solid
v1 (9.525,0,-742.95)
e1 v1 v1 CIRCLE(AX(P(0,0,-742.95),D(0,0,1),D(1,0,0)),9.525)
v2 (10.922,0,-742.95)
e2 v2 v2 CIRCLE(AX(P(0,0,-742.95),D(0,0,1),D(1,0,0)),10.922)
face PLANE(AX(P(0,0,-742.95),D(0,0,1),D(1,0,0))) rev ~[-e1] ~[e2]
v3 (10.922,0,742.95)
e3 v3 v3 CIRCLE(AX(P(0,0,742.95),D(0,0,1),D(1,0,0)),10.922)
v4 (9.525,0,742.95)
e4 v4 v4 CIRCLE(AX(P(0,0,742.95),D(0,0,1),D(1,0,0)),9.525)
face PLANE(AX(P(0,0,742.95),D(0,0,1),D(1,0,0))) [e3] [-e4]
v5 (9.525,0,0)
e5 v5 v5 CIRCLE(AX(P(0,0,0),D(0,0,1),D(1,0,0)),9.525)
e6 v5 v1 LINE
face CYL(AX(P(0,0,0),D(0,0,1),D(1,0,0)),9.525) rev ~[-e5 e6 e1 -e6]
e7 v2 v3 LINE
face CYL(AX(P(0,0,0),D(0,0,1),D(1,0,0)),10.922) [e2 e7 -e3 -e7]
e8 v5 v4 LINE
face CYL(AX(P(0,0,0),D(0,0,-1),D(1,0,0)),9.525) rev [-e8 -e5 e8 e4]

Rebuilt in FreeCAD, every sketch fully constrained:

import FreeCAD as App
import Part
import Sketcher
Q = App.Units.Quantity

doc = App.newDocument("Part")
params = doc.addObject("Spreadsheet::Sheet", "Params")
for row, (alias, value) in enumerate([
    ("sketch1_diameter", "0.86 in"),
    ("sketch1_diameter2", "0.75 in"),
    ("pad1_length", "29.25 in"),
    ("pad1_length2", "29.25 in"),
], start=1):
    params.set(f"A{row}", alias)
    params.set(f"B{row}", "=" + value)
    params.setAlias(f"B{row}", alias)

body = doc.addObject("PartDesign::Body", "Body")

# Sketch on XY plane
sketch1 = body.newObject("Sketcher::SketchObject", "Sketch")
sketch1.AttachmentSupport = (doc.getObject("XY_Plane"), [""])
sketch1.MapMode = "FlatFace"
sketch1.addGeometry([
    Part.Circle(App.Vector(0, 0, 0), App.Vector(0, 0, 1), 11),
    Part.Circle(App.Vector(0, 0, 0), App.Vector(0, 0, 1), 10),
], False)
sketch1.addConstraint([
    Sketcher.Constraint("Coincident", 0, 3, -1, 1),
    Sketcher.Constraint("Coincident", 1, 3, -1, 1),
    Sketcher.Constraint("Diameter", 0, Q("0.86 in")),
    Sketcher.Constraint("Diameter", 1, Q("0.75 in")),
])
sketch1.setExpression("Constraints[2]", "Params.sketch1_diameter")
sketch1.setExpression("Constraints[3]", "Params.sketch1_diameter2")
pad1 = body.newObject("PartDesign::Pad", "Pad")
pad1.Profile = sketch1
pad1.Type = "TwoLengths"
pad1.setExpression("Length", "Params.pad1_length")
pad1.setExpression("Length2", "Params.pad1_length2")

doc.recompute()
